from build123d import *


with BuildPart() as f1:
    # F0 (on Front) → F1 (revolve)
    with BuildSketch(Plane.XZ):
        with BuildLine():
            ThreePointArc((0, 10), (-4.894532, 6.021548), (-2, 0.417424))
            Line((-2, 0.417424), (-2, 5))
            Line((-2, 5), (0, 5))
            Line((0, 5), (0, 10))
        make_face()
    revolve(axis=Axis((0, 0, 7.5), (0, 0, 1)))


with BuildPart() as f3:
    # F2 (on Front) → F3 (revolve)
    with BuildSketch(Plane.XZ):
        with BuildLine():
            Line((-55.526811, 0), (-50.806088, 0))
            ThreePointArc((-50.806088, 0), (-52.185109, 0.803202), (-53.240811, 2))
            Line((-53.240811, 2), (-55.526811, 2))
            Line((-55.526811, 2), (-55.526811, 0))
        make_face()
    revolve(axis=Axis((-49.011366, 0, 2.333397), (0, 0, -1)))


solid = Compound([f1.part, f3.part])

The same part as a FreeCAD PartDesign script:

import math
import FreeCAD as App
import Part
import Sketcher
from FreeCAD import Vector
Q = App.Units.Quantity

doc = App.newDocument("Part")
params = doc.addObject("Spreadsheet::Sheet", "Params")
for row, (alias, value) in enumerate([
    ("sketch1_radius", "5 mm"),
    ("sketch1_width", "2 mm"),
    ("revolution_angle", "360 deg"),
    ("sketch2_height", "2 mm"),
    ("revolution2_angle", "360 deg"),
], start=1):
    params.set(f"A{row}", alias)
    params.set(f"B{row}", "=" + value)
    params.setAlias(f"B{row}", alias)

body = doc.addObject("PartDesign::Body", "Body")

# Sketch on XZ plane
sketch1 = body.newObject("Sketcher::SketchObject", "Sketch")
sketch1.AttachmentSupport = (doc.getObject("XZ_Plane"), [""])
sketch1.MapMode = "FlatFace"
sketch1.addGeometry([
    Part.ArcOfCircle(Part.Circle(Vector(0, 5, 0), Vector(0, 0, 1), 5), math.radians(90), math.radians(246)),
    Part.LineSegment(Vector(-2, 0.4, 0), Vector(-2, 5, 0)),
    Part.LineSegment(Vector(-2, 5, 0), Vector(0, 5, 0)),
    Part.LineSegment(Vector(0, 5, 0), Vector(0, 10, 0)),
], False)
sketch1.addConstraint([
    Sketcher.Constraint("Coincident", 0, 2, 1, 1),
    Sketcher.Constraint("Coincident", 1, 2, 2, 1),
    Sketcher.Constraint("Coincident", 2, 2, 3, 1),
    Sketcher.Constraint("Coincident", 3, 2, 0, 1),
    Sketcher.Constraint("Vertical", 1),
    Sketcher.Constraint("Horizontal", 2),
    Sketcher.Constraint("Vertical", 3),
    Sketcher.Constraint("Coincident", 2, 2, 0, 3),
    Sketcher.Constraint("PointOnObject", 0, 3, -2),
    Sketcher.Constraint("Radius", 0, Q("5 mm")),
    Sketcher.Constraint("DistanceX", 2, 1, 2, 2, Q("2 mm")),
    Sketcher.Constraint("DistanceY", -1, 1, 0, 3, Q("5 mm")),
])
sketch1.setExpression("Constraints[9]", "Params.sketch1_radius")
sketch1.setExpression("Constraints[10]", "Params.sketch1_width")
revolution = body.newObject("PartDesign::Revolution", "Revolution")
revolution.Profile = sketch1
revolution.ReferenceAxis = (sketch1, ["V_Axis"])
revolution.setExpression("Angle", "Params.revolution_angle")
body2 = doc.addObject("PartDesign::Body", "Body001")

# Sketch on XZ plane
sketch2 = body2.newObject("Sketcher::SketchObject", "Sketch001")
sketch2.AttachmentSupport = (doc.getObject("XZ_Plane001"), [""])
sketch2.MapMode = "FlatFace"
sketch2.addGeometry([
    Part.LineSegment(Vector(-55.5, 0, 0), Vector(-50.8, 0, 0)),
    Part.ArcOfCircle(Part.Circle(Vector(-49, 4.7, 0), Vector(0, 0, 1), 5), math.radians(-148), math.radians(-111)),
    Part.LineSegment(Vector(-53.2, 2, 0), Vector(-55.5, 2, 0)),
    Part.LineSegment(Vector(-55.5, 2, 0), Vector(-55.5, 0, 0)),
], False)
sketch2.addGeometry(Part.LineSegment(Vector(-49, 4.7, 0), Vector(-49, 0, 0)), True)  # axis
sketch2.addConstraint([
    Sketcher.Constraint("Coincident", 0, 2, 1, 2),
    Sketcher.Constraint("Coincident", 1, 1, 2, 1),
    Sketcher.Constraint("Coincident", 2, 2, 3, 1),
    Sketcher.Constraint("Coincident", 3, 2, 0, 1),
    Sketcher.Constraint("Horizontal", 0),
    Sketcher.Constraint("Horizontal", 2),
    Sketcher.Constraint("Vertical", 3),
    Sketcher.Constraint("Vertical", 4),
    Sketcher.Constraint("Coincident", 4, 1, 1, 3),
    Sketcher.Constraint("PointOnObject", 0, 2, -1),
    Sketcher.Constraint("PointOnObject", 4, 2, -1),
    Sketcher.Constraint("DistanceY", 3, 2, 3, 1, Q("2 mm")),
    Sketcher.Constraint("DistanceX", 2, 2, 2, 1, Q("2.286 mm")),
    Sketcher.Constraint("Radius", 1, Q("5.000012 mm")),
    Sketcher.Constraint("DistanceX", 0, 1, 0, 2, Q("4.720723 mm")),
    Sketcher.Constraint("DistanceX", 1, 3, -1, 1, Q("49.011358 mm")),
])
sketch2.setExpression("Constraints[11]", "Params.sketch2_height")
revolution2 = body2.newObject("PartDesign::Revolution", "Revolution001")
revolution2.Profile = sketch2
revolution2.ReferenceAxis = (sketch2, ["Axis0"])
revolution2.setExpression("Angle", "Params.revolution2_angle")

doc.recompute()
